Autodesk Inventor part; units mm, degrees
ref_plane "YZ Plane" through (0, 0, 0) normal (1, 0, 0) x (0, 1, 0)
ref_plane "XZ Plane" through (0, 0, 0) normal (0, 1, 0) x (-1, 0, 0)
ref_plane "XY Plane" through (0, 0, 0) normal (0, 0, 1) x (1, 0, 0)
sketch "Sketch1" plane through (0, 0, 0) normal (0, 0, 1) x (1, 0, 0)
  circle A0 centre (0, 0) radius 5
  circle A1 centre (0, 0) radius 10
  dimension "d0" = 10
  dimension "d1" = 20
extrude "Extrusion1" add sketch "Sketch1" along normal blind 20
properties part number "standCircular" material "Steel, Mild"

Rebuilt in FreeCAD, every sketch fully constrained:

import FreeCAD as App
import Part
import Sketcher
Q = App.Units.Quantity

doc = App.newDocument("Part")
body = doc.addObject("PartDesign::Body", "Body")

# Sketch on XY plane
sketch1 = doc.addObject("Sketcher::SketchObject", "Sketch")
body.addObject(sketch1)
sketch1.AttachmentSupport = (doc.XY_Plane, [""])
sketch1.MapMode = "FlatFace"
sketch1.addGeometry([
    Part.Circle(App.Vector(0, 0, 0), App.Vector(0, 0, 1), 10),
    Part.Circle(App.Vector(0, 0, 0), App.Vector(0, 0, 1), 5),
], False)
sketch1.addConstraint([
    Sketcher.Constraint("Coincident", 0, 3, -1, 1),
    Sketcher.Constraint("Coincident", 1, 3, -1, 1),
    Sketcher.Constraint("Diameter", 0, Q("20 mm")),
    Sketcher.Constraint("Diameter", 1, Q("10 mm")),
])
pad1 = doc.addObject("PartDesign::Pad", "Pad")
body.addObject(pad1)
pad1.Profile = sketch1
pad1.Length = 20

doc.recompute()
